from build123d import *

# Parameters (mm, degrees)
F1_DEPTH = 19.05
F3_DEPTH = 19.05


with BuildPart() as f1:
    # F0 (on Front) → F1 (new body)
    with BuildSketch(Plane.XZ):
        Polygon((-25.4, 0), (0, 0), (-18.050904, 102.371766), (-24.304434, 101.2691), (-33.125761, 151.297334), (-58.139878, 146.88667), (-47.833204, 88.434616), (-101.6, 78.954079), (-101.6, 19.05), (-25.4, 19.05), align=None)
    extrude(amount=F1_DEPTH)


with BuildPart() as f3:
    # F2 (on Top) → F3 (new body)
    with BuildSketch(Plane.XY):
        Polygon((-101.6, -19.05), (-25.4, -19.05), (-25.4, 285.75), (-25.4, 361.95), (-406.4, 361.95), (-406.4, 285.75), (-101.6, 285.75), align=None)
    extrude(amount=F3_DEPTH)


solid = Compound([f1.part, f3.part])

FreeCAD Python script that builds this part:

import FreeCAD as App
import Part
import Sketcher
from FreeCAD import Vector
Q = App.Units.Quantity

doc = App.newDocument("Part")
params = doc.addObject("Spreadsheet::Sheet", "Params")
for row, (alias, value) in enumerate([
    ("sketch1_width", "1 in"),
    ("sketch1_width2", "3 in"),
    ("sketch1_length", "2 in"),
    ("sketch1_length2", "1 in"),
    ("sketch1_height", "0.75 in"),
    ("pad1_length", "0.75 in"),
    ("sketch2_width", "3 in"),
    ("sketch2_width2", "15 in"),
    ("pad2_length", "0.75 in"),
], start=1):
    params.set(f"A{row}", alias)
    params.set(f"B{row}", "=" + value)
    params.setAlias(f"B{row}", alias)

body = doc.addObject("PartDesign::Body", "Body")

# Sketch on XZ plane
sketch1 = body.newObject("Sketcher::SketchObject", "Sketch")
sketch1.AttachmentSupport = (doc.getObject("XZ_Plane"), [""])
sketch1.MapMode = "FlatFace"
sketch1.addGeometry([
    Part.LineSegment(Vector(-25.4, 0, 0), Vector(0, 0, 0)),  # 0
    Part.LineSegment(Vector(0, 0, 0), Vector(-18.050904, 102.371766, 0)),  # 1
    Part.LineSegment(Vector(-18.050904, 102.371766, 0), Vector(-24.304434, 101.2691, 0)),  # 2
    Part.LineSegment(Vector(-24.304434, 101.2691, 0), Vector(-33.125761, 151.297334, 0)),  # 3
    Part.LineSegment(Vector(-33.125761, 151.297334, 0), Vector(-58.139878, 146.88667, 0)),  # 4
    Part.LineSegment(Vector(-58.139878, 146.88667, 0), Vector(-47.833204, 88.434616, 0)),  # 5
    Part.LineSegment(Vector(-47.833204, 88.434616, 0), Vector(-101.6, 78.954079, 0)),  # 6
    Part.LineSegment(Vector(-101.6, 78.954079, 0), Vector(-101.6, 19.05, 0)),  # 7
    Part.LineSegment(Vector(-101.6, 19.05, 0), Vector(-25.4, 19.05, 0)),  # 8
    Part.LineSegment(Vector(-25.4, 19.05, 0), Vector(-25.4, 0, 0)),  # 9
], False)
sketch1.addConstraint([
    Sketcher.Constraint("Coincident", 0, 2, 1, 1),
    Sketcher.Constraint("Coincident", 1, 2, 2, 1),
    Sketcher.Constraint("Coincident", 2, 2, 3, 1),
    Sketcher.Constraint("Coincident", 3, 2, 4, 1),
    Sketcher.Constraint("Coincident", 4, 2, 5, 1),
    Sketcher.Constraint("Coincident", 5, 2, 6, 1),
    Sketcher.Constraint("Coincident", 6, 2, 7, 1),
    Sketcher.Constraint("Coincident", 7, 2, 8, 1),
    Sketcher.Constraint("Coincident", 8, 2, 9, 1),
    Sketcher.Constraint("Coincident", 9, 2, 0, 1),
    Sketcher.Constraint("Horizontal", 0),
    Sketcher.Constraint("Vertical", 7),
    Sketcher.Constraint("Horizontal", 8),
    Sketcher.Constraint("Vertical", 9),
    Sketcher.Constraint("Coincident", 0, 2, -1, 1),
    Sketcher.Constraint("Perpendicular", 1, 2),
    Sketcher.Constraint("Perpendicular", 2, 3),
    Sketcher.Constraint("Perpendicular", 3, 4),
    Sketcher.Constraint("Perpendicular", 4, 5),
    Sketcher.Constraint("Perpendicular", 5, 6),
    Sketcher.Constraint("DistanceX", 0, 1, 0, 2, Q("1 in")),
    Sketcher.Constraint("DistanceX", 8, 1, 8, 2, Q("3 in")),
    Sketcher.Constraint("Distance", 3, Q("2 in")),
    Sketcher.Constraint("Distance", 4, Q("1 in")),
    Sketcher.Constraint("Angle", 1, Q("100 deg")),
    Sketcher.Constraint("DistanceY", 9, 2, 9, 1, Q("0.75 in")),
    Sketcher.Constraint("Distance", 2, Q("0.25 in")),
    Sketcher.Constraint("DistanceY", 7, 2, 7, 1, 59.904079),
    Sketcher.Constraint("DistanceY", -1, 1, 2, 2, 101.2691),
])
sketch1.setExpression("Constraints[20]", "Params.sketch1_width")
sketch1.setExpression("Constraints[21]", "Params.sketch1_width2")
sketch1.setExpression("Constraints[22]", "Params.sketch1_length")
sketch1.setExpression("Constraints[23]", "Params.sketch1_length2")
sketch1.setExpression("Constraints[25]", "Params.sketch1_height")
pad1 = body.newObject("PartDesign::Pad", "Pad")
pad1.Profile = sketch1
pad1.setExpression("Length", "Params.pad1_length")
body2 = doc.addObject("PartDesign::Body", "Body001")

# Sketch on XY plane
sketch2 = body2.newObject("Sketcher::SketchObject", "Sketch001")
sketch2.AttachmentSupport = (doc.getObject("XY_Plane001"), [""])
sketch2.MapMode = "FlatFace"
sketch2.addGeometry([
    Part.LineSegment(Vector(-101.6, -19.05, 0), Vector(-25.4, -19.05, 0)),  # 0
    Part.LineSegment(Vector(-25.4, -19.05, 0), Vector(-25.4, 361.95, 0)),  # 1
    Part.LineSegment(Vector(-25.4, 361.95, 0), Vector(-406.4, 361.95, 0)),  # 2
    Part.LineSegment(Vector(-406.4, 361.95, 0), Vector(-406.4, 285.75, 0)),  # 3
    Part.LineSegment(Vector(-406.4, 285.75, 0), Vector(-101.6, 285.75, 0)),  # 4
    Part.LineSegment(Vector(-101.6, 285.75, 0), Vector(-101.6, -19.05, 0)),  # 5
], False)
sketch2.addConstraint([
    Sketcher.Constraint("Coincident", 0, 2, 1, 1),
    Sketcher.Constraint("Coincident", 1, 2, 2, 1),
    Sketcher.Constraint("Coincident", 2, 2, 3, 1),
    Sketcher.Constraint("Coincident", 3, 2, 4, 1),
    Sketcher.Constraint("Coincident", 4, 2, 5, 1),
    Sketcher.Constraint("Coincident", 5, 2, 0, 1),
    Sketcher.Constraint("Horizontal", 0),
    Sketcher.Constraint("Vertical", 1),
    Sketcher.Constraint("Horizontal", 2),
    Sketcher.Constraint("Vertical", 3),
    Sketcher.Constraint("Horizontal", 4),
    Sketcher.Constraint("Vertical", 5),
    Sketcher.Constraint("Equal", 2, 1),
    Sketcher.Constraint("Equal", 0, 3),
    Sketcher.Constraint("DistanceX", 0, 1, 0, 2, Q("3 in")),
    Sketcher.Constraint("DistanceX", 2, 2, 2, 1, Q("15 in")),
    Sketcher.Constraint("DistanceX", 0, 2, -1, 1, Q("1 in")),
    Sketcher.Constraint("DistanceY", 0, 2, -1, 1, Q("0.75 in")),
])
sketch2.setExpression("Constraints[14]", "Params.sketch2_width")
sketch2.setExpression("Constraints[15]", "Params.sketch2_width2")
pad2 = body2.newObject("PartDesign::Pad", "Pad001")
pad2.Profile = sketch2
pad2.setExpression("Length", "Params.pad2_length")

doc.recompute()
